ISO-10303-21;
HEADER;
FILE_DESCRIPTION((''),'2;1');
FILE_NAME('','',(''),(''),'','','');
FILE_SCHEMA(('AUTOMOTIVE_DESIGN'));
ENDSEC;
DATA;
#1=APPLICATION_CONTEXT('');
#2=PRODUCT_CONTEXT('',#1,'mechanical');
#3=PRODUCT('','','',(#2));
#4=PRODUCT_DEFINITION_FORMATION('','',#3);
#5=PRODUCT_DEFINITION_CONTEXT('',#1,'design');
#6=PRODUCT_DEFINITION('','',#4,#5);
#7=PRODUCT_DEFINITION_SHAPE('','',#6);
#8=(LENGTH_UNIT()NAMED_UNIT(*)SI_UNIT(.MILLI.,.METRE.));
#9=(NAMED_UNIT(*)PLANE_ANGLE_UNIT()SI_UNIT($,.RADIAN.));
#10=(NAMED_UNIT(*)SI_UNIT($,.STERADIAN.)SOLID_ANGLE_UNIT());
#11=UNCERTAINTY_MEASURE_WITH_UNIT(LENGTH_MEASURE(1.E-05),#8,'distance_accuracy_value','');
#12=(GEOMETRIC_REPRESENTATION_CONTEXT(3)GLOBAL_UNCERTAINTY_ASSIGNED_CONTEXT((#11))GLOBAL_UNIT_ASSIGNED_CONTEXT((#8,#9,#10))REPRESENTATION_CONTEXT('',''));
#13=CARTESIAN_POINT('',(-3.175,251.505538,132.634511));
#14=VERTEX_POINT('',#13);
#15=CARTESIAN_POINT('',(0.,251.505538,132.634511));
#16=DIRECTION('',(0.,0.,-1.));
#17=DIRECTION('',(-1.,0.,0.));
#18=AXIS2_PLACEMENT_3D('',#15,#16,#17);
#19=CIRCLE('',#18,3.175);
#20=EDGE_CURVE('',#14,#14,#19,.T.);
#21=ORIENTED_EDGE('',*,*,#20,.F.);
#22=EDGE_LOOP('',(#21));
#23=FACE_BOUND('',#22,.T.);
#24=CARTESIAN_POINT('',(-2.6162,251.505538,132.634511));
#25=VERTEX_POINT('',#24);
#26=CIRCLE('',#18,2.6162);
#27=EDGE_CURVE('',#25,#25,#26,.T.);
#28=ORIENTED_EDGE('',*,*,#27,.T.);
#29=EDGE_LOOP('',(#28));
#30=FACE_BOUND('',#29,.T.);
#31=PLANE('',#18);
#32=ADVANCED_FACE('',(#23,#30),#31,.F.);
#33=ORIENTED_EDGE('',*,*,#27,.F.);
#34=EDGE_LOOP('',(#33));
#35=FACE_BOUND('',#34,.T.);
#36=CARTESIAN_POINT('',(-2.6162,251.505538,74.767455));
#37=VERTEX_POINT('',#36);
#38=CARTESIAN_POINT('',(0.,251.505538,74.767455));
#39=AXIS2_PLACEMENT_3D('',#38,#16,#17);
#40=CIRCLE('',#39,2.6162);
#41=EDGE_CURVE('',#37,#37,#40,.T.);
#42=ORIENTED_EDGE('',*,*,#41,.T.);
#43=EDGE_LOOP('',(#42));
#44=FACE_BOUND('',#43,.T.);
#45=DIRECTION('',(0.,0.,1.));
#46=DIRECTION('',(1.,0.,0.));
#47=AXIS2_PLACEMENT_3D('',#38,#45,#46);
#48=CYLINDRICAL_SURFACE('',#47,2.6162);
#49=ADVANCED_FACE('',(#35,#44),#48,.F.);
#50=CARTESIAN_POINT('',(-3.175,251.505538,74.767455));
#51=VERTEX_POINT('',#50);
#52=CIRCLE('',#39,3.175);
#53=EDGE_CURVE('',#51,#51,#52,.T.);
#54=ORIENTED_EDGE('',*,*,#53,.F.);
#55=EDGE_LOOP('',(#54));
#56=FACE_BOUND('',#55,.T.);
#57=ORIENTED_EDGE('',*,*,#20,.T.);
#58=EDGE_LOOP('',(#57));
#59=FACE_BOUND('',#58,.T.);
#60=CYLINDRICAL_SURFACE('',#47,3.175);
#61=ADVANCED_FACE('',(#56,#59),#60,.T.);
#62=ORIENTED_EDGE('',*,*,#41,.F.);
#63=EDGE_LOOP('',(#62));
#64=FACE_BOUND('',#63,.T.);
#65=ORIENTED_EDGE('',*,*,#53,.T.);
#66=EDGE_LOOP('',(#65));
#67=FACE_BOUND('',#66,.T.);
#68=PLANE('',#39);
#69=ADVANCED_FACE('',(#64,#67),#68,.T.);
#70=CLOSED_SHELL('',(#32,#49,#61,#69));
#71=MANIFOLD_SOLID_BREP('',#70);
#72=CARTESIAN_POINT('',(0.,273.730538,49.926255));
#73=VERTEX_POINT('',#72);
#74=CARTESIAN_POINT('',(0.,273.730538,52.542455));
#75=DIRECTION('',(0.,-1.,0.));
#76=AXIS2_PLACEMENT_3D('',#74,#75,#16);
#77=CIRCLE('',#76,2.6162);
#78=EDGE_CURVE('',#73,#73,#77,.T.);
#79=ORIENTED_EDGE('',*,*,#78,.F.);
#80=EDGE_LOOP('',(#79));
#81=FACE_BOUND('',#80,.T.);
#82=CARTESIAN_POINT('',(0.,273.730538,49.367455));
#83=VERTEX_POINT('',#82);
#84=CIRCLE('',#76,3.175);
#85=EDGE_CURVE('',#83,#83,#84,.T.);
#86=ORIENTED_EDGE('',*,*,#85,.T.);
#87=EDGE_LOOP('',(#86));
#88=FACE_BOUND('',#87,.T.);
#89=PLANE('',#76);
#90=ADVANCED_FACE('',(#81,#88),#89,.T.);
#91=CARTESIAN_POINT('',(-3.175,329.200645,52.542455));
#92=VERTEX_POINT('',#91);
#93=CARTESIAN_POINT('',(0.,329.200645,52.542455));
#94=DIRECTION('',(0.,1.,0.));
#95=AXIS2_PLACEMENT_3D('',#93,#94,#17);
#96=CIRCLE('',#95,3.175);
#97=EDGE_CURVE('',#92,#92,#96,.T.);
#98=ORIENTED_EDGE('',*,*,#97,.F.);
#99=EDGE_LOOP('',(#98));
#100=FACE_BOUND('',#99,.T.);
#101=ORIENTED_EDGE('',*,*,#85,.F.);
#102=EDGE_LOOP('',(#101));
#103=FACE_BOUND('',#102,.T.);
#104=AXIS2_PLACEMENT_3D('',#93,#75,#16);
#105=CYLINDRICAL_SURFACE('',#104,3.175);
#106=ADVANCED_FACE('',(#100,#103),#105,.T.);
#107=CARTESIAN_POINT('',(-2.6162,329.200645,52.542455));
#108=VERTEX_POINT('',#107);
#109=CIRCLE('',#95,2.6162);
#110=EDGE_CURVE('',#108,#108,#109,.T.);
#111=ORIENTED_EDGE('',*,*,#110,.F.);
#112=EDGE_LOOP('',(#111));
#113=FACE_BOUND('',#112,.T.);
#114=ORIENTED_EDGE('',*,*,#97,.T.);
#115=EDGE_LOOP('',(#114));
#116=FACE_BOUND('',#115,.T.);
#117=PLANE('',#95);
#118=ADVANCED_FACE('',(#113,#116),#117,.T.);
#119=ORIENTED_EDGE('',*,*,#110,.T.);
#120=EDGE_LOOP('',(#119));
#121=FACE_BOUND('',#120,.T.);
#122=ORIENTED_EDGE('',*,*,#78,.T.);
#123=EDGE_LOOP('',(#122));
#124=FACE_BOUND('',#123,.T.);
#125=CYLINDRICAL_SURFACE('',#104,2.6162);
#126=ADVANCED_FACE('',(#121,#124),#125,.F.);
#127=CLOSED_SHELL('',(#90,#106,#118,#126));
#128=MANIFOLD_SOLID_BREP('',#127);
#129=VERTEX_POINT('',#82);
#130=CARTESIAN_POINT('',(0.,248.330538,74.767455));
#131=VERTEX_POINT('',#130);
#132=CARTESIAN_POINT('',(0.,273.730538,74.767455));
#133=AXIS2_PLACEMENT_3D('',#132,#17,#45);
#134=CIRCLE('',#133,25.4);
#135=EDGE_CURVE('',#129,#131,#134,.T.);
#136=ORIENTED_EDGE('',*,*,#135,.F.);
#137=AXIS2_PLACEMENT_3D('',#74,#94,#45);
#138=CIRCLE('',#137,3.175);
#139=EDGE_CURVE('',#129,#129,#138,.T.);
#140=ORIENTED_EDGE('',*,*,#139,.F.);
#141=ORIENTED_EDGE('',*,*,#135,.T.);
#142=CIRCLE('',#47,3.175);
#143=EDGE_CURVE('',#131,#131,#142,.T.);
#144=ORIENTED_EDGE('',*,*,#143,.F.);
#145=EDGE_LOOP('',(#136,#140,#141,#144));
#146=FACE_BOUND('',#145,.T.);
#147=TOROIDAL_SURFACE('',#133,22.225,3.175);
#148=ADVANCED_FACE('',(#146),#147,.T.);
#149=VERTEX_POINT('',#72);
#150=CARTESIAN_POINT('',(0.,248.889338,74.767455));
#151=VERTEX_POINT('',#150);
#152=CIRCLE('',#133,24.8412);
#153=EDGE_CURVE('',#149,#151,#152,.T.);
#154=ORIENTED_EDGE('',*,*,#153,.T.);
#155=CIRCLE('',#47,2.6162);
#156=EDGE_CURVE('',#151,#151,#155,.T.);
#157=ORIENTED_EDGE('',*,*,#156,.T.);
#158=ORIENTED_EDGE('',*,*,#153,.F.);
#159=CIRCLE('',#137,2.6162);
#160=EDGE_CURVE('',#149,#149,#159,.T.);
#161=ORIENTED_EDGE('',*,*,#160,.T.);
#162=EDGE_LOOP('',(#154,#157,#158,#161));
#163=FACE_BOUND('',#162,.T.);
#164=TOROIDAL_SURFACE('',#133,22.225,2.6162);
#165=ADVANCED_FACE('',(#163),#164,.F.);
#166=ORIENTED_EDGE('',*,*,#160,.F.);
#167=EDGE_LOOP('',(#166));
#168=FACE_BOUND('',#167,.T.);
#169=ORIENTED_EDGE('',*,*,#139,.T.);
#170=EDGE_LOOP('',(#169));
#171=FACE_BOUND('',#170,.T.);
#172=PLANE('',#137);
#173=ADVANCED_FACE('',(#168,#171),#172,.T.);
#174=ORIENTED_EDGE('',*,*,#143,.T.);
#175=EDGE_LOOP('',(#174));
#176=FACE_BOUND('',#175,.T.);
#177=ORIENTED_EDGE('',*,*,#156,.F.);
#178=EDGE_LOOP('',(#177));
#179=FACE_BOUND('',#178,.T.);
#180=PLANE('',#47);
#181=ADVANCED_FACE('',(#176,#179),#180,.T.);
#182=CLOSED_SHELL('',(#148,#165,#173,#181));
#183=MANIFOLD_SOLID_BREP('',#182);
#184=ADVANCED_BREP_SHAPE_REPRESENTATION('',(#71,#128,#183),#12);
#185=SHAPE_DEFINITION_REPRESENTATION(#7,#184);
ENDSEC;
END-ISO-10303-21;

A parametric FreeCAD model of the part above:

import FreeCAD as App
import Part
import Sketcher
from FreeCAD import Vector
Q = App.Units.Quantity

doc = App.newDocument("Part")
body = doc.addObject("PartDesign::Body", "Body")

# Sketch on XY plane
sketch1 = body.newObject("Sketcher::SketchObject", "Sketch")
sketch1.AttachmentSupport = (doc.getObject("XY_Plane"), [""])
sketch1.MapMode = "FlatFace"
sketch1.AttachmentOffset = App.Placement(Vector(0, 0, 132.634511), App.Rotation())
sketch1.addGeometry(Part.Circle(Vector(0, 251.5, 0), Vector(0, 0, 1), 3.2), False)
sketch1.addGeometry(Part.Circle(Vector(0, 251.5, 0), Vector(0, 0, 1), 2.6), False)
sketch1.addConstraint(Sketcher.Constraint("Coincident", 1, 3, 0, 3))
sketch1.addConstraint(Sketcher.Constraint("PointOnObject", 0, 3, -2))
sketch1.addConstraint(Sketcher.Constraint("Diameter", 0, Q("0.25 in")))
sketch1.addConstraint(Sketcher.Constraint("Diameter", 1, Q("0.206 in")))
sketch1.addConstraint(Sketcher.Constraint("DistanceY", -1, 1, 0, 3, 251.505538))
pad1 = body.newObject("PartDesign::Pad", "Pad")
pad1.Profile = sketch1
pad1.Length = 57.867056
pad1.Reversed = True
body2 = doc.addObject("PartDesign::Body", "Body001")

# Sketch on XY plane
sketch2 = body2.newObject("Sketcher::SketchObject", "Sketch001")
sketch2.AttachmentSupport = (doc.getObject("XY_Plane001"), [""])
sketch2.MapMode = "FlatFace"
sketch2.AttachmentOffset = App.Placement(Vector(0, 0, 74.767455), App.Rotation())
sketch2.addGeometry(Part.Circle(Vector(0, 251.5, 0), Vector(0, 0, 1), 3.2), False)
sketch2.addGeometry(Part.Circle(Vector(0, 251.5, 0), Vector(0, 0, 1), 2.6), False)
sketch2.addGeometry(Part.LineSegment(Vector(0, 273.7, 0), Vector(10, 273.7, 0)), True)  # axis
sketch2.addConstraint(Sketcher.Constraint("Horizontal", 2))
sketch2.addConstraint(Sketcher.Constraint("Coincident", 1, 3, 0, 3))
sketch2.addConstraint(Sketcher.Constraint("PointOnObject", 0, 3, -2))
sketch2.addConstraint(Sketcher.Constraint("PointOnObject", 2, 1, -2))
sketch2.addConstraint(Sketcher.Constraint("Diameter", 0, Q("0.25 in")))
sketch2.addConstraint(Sketcher.Constraint("Diameter", 1, Q("0.206 in")))
sketch2.addConstraint(Sketcher.Constraint("DistanceY", 0, 3, 2, 1, Q("0.875 in")))
sketch2.addConstraint(Sketcher.Constraint("DistanceX", 2, 1, 2, 2, 10.0))
sketch2.addConstraint(Sketcher.Constraint("DistanceY", -1, 1, 0, 3, 251.505538))
revolution = body2.newObject("PartDesign::Revolution", "Revolution")
revolution.Profile = sketch2
revolution.ReferenceAxis = (sketch2, ["Axis0"])
revolution.Angle = 90
body3 = doc.addObject("PartDesign::Body", "Body002")

# Sketch on XZ plane
sketch3 = body3.newObject("Sketcher::SketchObject", "Sketch002")
sketch3.AttachmentSupport = (doc.getObject("XZ_Plane002"), [""])
sketch3.MapMode = "FlatFace"
sketch3.AttachmentOffset = App.Placement(Vector(0, 0, -273.730538), App.Rotation())
sketch3.addGeometry(Part.Circle(Vector(0, 52.5, 0), Vector(0, 0, 1), 3.2), False)
sketch3.addGeometry(Part.Circle(Vector(0, 52.5, 0), Vector(0, 0, 1), 2.6), False)
sketch3.addConstraint(Sketcher.Constraint("Coincident", 1, 3, 0, 3))
sketch3.addConstraint(Sketcher.Constraint("PointOnObject", 0, 3, -2))
sketch3.addConstraint(Sketcher.Constraint("Diameter", 0, Q("0.25 in")))
sketch3.addConstraint(Sketcher.Constraint("Diameter", 1, Q("0.206 in")))
sketch3.addConstraint(Sketcher.Constraint("DistanceY", -1, 1, 0, 3, 52.542455))
pad2 = body3.newObject("PartDesign::Pad", "Pad001")
pad2.Profile = sketch3
pad2.Length = 55.470107
pad2.Reversed = True

doc.recompute()
